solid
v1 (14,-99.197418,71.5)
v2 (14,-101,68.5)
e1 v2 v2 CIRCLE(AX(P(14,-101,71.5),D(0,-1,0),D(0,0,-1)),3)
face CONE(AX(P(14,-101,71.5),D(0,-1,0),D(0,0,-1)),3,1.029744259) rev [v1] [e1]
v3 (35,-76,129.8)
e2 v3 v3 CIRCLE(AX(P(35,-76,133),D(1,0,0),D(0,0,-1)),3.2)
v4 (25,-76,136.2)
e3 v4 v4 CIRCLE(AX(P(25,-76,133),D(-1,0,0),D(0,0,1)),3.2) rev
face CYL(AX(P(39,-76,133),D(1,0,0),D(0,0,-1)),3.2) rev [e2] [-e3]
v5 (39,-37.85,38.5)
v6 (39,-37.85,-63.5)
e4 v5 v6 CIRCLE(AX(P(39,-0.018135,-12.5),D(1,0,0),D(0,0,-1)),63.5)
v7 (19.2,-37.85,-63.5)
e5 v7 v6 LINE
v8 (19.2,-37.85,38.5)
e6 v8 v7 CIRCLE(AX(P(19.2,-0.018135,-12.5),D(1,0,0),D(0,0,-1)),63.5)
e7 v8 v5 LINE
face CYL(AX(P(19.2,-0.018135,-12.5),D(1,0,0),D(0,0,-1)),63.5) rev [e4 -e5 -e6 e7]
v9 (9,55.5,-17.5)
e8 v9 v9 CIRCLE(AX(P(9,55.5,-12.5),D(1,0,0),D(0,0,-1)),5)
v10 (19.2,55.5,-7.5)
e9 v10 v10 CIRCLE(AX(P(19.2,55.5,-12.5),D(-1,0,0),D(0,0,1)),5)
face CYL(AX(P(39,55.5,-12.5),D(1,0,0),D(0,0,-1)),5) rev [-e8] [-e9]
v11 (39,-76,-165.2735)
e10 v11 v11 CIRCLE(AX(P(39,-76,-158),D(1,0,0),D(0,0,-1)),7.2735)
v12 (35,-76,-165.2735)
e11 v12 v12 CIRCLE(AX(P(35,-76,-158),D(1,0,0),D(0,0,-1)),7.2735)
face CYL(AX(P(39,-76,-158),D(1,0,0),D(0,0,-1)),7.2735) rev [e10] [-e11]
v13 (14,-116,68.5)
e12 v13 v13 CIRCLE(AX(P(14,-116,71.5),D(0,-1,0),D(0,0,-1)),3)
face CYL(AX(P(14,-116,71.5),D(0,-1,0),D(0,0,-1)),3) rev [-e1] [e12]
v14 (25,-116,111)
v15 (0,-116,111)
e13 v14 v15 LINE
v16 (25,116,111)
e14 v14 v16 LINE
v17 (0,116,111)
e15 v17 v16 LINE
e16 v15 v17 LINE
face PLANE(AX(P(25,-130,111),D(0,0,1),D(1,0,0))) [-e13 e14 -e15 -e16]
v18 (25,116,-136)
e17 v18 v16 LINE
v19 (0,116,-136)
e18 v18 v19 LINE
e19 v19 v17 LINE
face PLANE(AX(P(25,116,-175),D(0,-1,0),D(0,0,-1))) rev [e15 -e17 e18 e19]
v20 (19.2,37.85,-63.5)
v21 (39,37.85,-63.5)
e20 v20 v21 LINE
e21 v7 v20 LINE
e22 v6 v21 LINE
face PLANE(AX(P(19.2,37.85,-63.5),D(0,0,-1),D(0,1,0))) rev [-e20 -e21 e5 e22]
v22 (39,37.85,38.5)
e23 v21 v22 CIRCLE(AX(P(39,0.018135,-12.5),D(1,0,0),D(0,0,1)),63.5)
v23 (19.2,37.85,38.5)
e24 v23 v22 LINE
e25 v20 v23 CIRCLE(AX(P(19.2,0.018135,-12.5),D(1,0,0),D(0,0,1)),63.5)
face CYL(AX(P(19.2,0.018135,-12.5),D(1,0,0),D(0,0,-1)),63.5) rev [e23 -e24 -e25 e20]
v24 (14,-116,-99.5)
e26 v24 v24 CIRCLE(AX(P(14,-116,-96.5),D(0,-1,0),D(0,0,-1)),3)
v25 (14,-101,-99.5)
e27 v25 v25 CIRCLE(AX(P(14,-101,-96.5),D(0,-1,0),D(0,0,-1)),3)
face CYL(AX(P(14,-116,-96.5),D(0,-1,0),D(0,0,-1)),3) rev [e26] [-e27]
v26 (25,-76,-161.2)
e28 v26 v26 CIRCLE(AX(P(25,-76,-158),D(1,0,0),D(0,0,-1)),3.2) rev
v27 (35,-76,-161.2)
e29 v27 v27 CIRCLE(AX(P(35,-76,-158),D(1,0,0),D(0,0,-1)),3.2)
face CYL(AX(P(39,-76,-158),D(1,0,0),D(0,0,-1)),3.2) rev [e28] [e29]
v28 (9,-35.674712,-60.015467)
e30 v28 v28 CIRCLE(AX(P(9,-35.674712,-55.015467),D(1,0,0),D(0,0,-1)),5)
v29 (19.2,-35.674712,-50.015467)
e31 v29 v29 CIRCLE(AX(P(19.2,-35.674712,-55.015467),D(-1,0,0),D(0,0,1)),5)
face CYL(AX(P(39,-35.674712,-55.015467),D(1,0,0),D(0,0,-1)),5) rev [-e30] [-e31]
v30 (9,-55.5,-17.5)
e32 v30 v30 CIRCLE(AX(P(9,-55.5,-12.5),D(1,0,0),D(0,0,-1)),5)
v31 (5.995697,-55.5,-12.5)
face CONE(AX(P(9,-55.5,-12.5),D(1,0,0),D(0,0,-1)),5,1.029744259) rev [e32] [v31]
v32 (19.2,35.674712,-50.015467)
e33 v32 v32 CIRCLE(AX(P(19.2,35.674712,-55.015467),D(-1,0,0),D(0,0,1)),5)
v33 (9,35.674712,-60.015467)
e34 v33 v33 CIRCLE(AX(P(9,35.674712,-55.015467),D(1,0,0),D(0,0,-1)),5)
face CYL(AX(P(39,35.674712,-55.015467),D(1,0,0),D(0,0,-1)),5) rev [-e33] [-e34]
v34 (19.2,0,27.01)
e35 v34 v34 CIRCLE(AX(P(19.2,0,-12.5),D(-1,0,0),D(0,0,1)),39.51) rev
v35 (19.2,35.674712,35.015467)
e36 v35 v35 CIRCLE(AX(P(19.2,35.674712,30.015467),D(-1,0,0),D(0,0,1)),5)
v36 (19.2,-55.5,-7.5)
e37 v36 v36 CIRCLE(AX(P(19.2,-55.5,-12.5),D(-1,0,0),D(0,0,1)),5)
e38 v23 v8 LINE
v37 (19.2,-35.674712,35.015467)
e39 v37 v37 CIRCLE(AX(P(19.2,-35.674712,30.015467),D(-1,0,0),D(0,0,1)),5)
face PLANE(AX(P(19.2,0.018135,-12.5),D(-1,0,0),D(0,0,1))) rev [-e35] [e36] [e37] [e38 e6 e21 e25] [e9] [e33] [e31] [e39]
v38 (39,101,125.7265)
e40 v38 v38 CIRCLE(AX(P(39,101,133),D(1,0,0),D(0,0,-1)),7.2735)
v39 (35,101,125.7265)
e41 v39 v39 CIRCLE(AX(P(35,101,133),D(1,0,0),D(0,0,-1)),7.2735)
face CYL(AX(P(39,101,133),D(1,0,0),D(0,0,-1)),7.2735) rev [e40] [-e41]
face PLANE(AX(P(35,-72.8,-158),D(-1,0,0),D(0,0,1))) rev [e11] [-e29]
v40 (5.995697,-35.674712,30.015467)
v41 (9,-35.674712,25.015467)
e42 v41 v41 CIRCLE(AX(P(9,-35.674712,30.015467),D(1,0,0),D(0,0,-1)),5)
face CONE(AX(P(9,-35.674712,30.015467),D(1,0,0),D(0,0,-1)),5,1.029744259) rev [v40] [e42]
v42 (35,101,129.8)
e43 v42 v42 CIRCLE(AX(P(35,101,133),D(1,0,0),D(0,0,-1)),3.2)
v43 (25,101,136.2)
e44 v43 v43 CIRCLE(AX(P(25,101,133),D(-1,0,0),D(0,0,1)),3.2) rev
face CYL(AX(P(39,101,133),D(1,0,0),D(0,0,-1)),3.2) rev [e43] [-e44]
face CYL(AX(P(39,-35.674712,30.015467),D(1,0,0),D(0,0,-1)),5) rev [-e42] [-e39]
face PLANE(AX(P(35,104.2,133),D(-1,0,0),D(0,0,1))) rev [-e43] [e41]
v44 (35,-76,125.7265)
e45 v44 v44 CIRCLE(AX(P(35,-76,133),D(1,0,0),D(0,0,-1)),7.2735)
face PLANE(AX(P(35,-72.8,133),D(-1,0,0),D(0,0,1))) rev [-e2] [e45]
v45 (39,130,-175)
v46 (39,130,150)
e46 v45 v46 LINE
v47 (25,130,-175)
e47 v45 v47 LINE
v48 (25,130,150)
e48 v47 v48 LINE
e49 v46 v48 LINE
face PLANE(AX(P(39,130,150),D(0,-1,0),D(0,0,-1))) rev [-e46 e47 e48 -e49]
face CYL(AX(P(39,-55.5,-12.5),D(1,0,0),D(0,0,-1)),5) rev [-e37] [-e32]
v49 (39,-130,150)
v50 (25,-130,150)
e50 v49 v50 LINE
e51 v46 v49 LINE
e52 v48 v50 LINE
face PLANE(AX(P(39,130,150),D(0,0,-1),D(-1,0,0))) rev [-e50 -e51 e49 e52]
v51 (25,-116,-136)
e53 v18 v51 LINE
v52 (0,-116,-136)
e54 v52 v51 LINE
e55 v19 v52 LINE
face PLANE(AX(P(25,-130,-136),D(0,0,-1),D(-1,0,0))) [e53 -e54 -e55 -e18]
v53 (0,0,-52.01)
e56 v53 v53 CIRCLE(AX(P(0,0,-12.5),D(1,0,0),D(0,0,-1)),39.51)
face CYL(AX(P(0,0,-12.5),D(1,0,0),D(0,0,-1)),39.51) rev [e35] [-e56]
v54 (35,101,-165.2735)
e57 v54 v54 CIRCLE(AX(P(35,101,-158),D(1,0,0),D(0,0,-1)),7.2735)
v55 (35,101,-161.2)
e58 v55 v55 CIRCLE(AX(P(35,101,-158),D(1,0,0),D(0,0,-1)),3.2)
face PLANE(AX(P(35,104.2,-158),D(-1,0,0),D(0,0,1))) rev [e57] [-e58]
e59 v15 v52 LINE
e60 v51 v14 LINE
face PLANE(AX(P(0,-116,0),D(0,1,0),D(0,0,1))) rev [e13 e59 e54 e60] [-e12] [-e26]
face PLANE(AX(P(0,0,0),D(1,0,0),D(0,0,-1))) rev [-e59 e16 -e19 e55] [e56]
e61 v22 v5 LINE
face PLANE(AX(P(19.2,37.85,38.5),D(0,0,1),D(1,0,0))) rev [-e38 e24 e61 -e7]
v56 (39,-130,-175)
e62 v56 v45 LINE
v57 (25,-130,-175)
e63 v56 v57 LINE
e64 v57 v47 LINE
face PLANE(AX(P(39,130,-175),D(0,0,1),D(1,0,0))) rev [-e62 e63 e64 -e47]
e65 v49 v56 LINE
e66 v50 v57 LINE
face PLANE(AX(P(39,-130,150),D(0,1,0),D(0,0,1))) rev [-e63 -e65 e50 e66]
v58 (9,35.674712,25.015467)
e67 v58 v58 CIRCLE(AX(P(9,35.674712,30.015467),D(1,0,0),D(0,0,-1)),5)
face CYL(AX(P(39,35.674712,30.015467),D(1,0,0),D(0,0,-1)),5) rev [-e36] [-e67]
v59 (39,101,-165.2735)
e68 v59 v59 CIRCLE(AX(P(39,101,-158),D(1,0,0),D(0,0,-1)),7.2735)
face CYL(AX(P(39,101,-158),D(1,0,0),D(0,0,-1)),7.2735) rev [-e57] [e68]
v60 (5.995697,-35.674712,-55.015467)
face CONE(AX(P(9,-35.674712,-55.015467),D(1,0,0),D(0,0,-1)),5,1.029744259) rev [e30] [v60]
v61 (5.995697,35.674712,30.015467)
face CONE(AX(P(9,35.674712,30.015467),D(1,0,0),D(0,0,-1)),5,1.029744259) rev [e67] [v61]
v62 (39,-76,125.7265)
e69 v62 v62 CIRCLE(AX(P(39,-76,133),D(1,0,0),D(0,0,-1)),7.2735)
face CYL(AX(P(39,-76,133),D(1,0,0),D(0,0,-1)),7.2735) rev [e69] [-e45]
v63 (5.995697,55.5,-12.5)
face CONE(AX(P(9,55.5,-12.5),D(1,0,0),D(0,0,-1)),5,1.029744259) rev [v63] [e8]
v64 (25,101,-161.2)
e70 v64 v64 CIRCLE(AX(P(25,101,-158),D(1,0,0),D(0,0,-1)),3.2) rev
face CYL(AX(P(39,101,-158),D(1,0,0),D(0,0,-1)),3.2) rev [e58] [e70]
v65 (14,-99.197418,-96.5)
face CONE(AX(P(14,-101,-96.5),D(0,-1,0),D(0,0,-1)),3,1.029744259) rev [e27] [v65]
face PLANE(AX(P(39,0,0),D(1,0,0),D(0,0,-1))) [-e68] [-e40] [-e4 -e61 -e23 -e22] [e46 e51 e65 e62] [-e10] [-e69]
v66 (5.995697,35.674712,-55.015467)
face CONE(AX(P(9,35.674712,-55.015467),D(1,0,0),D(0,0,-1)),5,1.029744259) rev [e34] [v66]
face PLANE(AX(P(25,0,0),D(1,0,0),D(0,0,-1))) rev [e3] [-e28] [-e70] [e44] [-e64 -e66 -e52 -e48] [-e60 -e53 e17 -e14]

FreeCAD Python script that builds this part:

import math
import FreeCAD as App
import Part
import Sketcher

V = App.Vector


def add_polygon(sketch, points):
    """Adds a closed chain of lines whose ends are joined by coincident constraints."""
    first, n = sketch.GeometryCount, len(points)
    for a, b in zip(points, points[1:] + points[:1]):
        sketch.addGeometry(Part.LineSegment(App.Vector(*a, 0), App.Vector(*b, 0)), False)
    for i in range(n):
        sketch.addConstraint(Sketcher.Constraint("Coincident", first + i, 2, first + (i + 1) % n, 1))

doc = App.newDocument("Part")
body = doc.addObject("PartDesign::Body", "Body")

sketch1 = body.newObject("Sketcher::SketchObject", "Sketch")
sketch1.AttachmentSupport = (doc.getObject("YZ_Plane"), [""])
sketch1.MapMode = "FlatFace"
add_polygon(sketch1, [(130, 150), (-130, 150), (-130, -175), (130, -175)])
sketch1.addConstraint([
    Sketcher.Constraint("Horizontal", 0),
    Sketcher.Constraint("Vertical", 1),
    Sketcher.Constraint("Horizontal", 2),
    Sketcher.Constraint("Vertical", 3),
    Sketcher.Constraint("DistanceX", 0, 2, 0, 1, 260.0),
    Sketcher.Constraint("DistanceY", 1, 2, 1, 1, 325.0),
    Sketcher.Constraint("DistanceX", 0, 2, -1, 1, 130.0),
    Sketcher.Constraint("DistanceY", -1, 1, 0, 2, 150.0),
])
pad1 = body.newObject("PartDesign::Pad", "Pad")
pad1.Profile = sketch1
pad1.Length = 39

sketch2 = body.newObject("Sketcher::SketchObject", "Sketch001")
sketch2.AttachmentSupport = (doc.getObject("YZ_Plane"), [""])
sketch2.MapMode = "FlatFace"
sketch2.AttachmentOffset = App.Placement(V(0, 0, 39), App.Rotation())
sketch2.addGeometry([
    Part.Circle(V(101, -158, 0), V(0, 0, 1), 3.2),
    Part.Circle(V(-76, -158, 0), V(0, 0, 1), 3.2),
    Part.Circle(V(101, 133, 0), V(0, 0, 1), 3.2),
    Part.Circle(V(-76, 133, 0), V(0, 0, 1), 3.2),
], False)
sketch2.addConstraint([
    Sketcher.Constraint("Equal", 0, 1),
    Sketcher.Constraint("Equal", 1, 2),
    Sketcher.Constraint("Equal", 2, 3),
    Sketcher.Constraint("Horizontal", 0, 3, 1, 3),
    Sketcher.Constraint("Horizontal", 2, 3, 3, 3),
    Sketcher.Constraint("Vertical", 0, 3, 2, 3),
    Sketcher.Constraint("Vertical", 1, 3, 3, 3),
    Sketcher.Constraint("Diameter", 0, 6.4),
    Sketcher.Constraint("DistanceX", -1, 1, 0, 3, 101.0),
    Sketcher.Constraint("DistanceY", 0, 3, -1, 1, 158.0),
    Sketcher.Constraint("DistanceX", 1, 3, -1, 1, 76.0),
    Sketcher.Constraint("DistanceY", -1, 1, 2, 3, 133.0),
])
doc.recompute()
hole = body.newObject("PartDesign::Hole", "Hole")
hole.Profile = sketch2
hole.ThreadType = "None"
hole.Diameter = 6.4
hole.DepthType = "Dimension"
hole.Depth = 30
hole.DrillPoint = "Angled"
hole.DrillPointAngle = 118
hole.HoleCutType = "Counterbore"
hole.HoleCutDiameter = 14.547
hole.HoleCutDepth = 4

sketch3 = body.newObject("Sketcher::SketchObject", "Sketch002")
sketch3.AttachmentSupport = (doc.getObject("YZ_Plane"), [""])
sketch3.MapMode = "FlatFace"
sketch3.AttachmentOffset = App.Placement(V(0, 0, 39), App.Rotation())
sketch3.addGeometry(Part.Circle(V(0, -12, 0), V(0, 0, 1), 40), False)
sketch3.addConstraint([
    Sketcher.Constraint("PointOnObject", 0, 3, -2),
    Sketcher.Constraint("Diameter", 0, 79.02),
    Sketcher.Constraint("DistanceY", 0, 3, -1, 1, 12.5),
])
pocket1 = body.newObject("PartDesign::Pocket", "Pocket")
pocket1.Profile = sketch3
pocket1.Length = 39

sketch4 = body.newObject("Sketcher::SketchObject", "Sketch003")
sketch4.AttachmentSupport = (doc.getObject("YZ_Plane"), [""])
sketch4.MapMode = "FlatFace"
sketch4.AttachmentOffset = App.Placement(V(0, 0, 39), App.Rotation())
sketch4.addGeometry([
    Part.LineSegment(V(37.85, 38.5, 0), V(-37.85, 38.5, 0)),
    Part.ArcOfCircle(Part.Circle(V(-0.018135, -12.5, 0), V(0, 0, 1), 63.5), math.radians(126.568071), math.radians(233.431929)),
    Part.LineSegment(V(-37.85, -63.5, 0), V(37.85, -63.5, 0)),
    Part.ArcOfCircle(Part.Circle(V(0.018135, -12.5, 0), V(0, 0, 1), 63.5), math.radians(-53.431929), math.radians(53.431929)),
], False)
sketch4.addConstraint([
    Sketcher.Constraint("Coincident", 0, 2, 1, 1),
    Sketcher.Constraint("Coincident", 1, 2, 2, 1),
    Sketcher.Constraint("Coincident", 2, 2, 3, 1),
    Sketcher.Constraint("Coincident", 3, 2, 0, 1),
    Sketcher.Constraint("Horizontal", 0),
    Sketcher.Constraint("Horizontal", 2),
    Sketcher.Constraint("Equal", 1, 3),
    Sketcher.Constraint("Symmetric", 1, 3, 3, 3, -2),
    Sketcher.Constraint("Vertical", 0, 2, 1, 2),
    Sketcher.Constraint("Radius", 1, 63.5),
    Sketcher.Constraint("DistanceX", 0, 2, 0, 1, 75.7),
    Sketcher.Constraint("DistanceY", 1, 3, 0, 2, 51.0),
    Sketcher.Constraint("DistanceY", 1, 3, -1, 1, 12.5),
])
pocket2 = body.newObject("PartDesign::Pocket", "Pocket001")
pocket2.Profile = sketch4
pocket2.Length = 19.8

sketch5 = body.newObject("Sketcher::SketchObject", "Sketch004")
sketch5.AttachmentSupport = (doc.getObject("YZ_Plane"), [""])
sketch5.MapMode = "FlatFace"
sketch5.AttachmentOffset = App.Placement(V(0, 0, 39), App.Rotation())
sketch5.addGeometry([
    Part.Circle(V(56, -12, 0), V(0, 0, 1), 5),
    Part.Circle(V(36, -55, 0), V(0, 0, 1), 5),
    Part.Circle(V(36, 30, 0), V(0, 0, 1), 5),
    Part.Circle(V(-36, 30, 0), V(0, 0, 1), 5),
    Part.Circle(V(-56, -12, 0), V(0, 0, 1), 5),
    Part.Circle(V(-36, -55, 0), V(0, 0, 1), 5),
], False)
sketch5.addConstraint([
    Sketcher.Constraint("Equal", 0, 1),
    Sketcher.Constraint("Equal", 1, 2),
    Sketcher.Constraint("Equal", 2, 3),
    Sketcher.Constraint("Equal", 3, 4),
    Sketcher.Constraint("Equal", 4, 5),
    Sketcher.Constraint("Symmetric", 2, 3, 3, 3, -2),
    Sketcher.Constraint("Symmetric", 0, 3, 4, 3, -2),
    Sketcher.Constraint("Symmetric", 1, 3, 5, 3, -2),
    Sketcher.Constraint("Vertical", 1, 3, 2, 3),
    Sketcher.Constraint("Diameter", 0, 10.0),
    Sketcher.Constraint("DistanceX", 4, 3, 0, 3, 111.0),
    Sketcher.Constraint("DistanceY", 0, 3, -1, 1, 12.5),
    Sketcher.Constraint("DistanceX", -1, 1, 1, 3, 35.674712),
    Sketcher.Constraint("DistanceY", 1, 3, -1, 1, 55.015467),
    Sketcher.Constraint("DistanceY", -1, 1, 2, 3, 30.015467),
])
doc.recompute()
hole2 = body.newObject("PartDesign::Hole", "Hole001")
hole2.Profile = sketch5
hole2.ThreadType = "None"
hole2.Diameter = 10
hole2.DepthType = "Dimension"
hole2.Depth = 30
hole2.DrillPoint = "Angled"
hole2.DrillPointAngle = 118

sketch6 = body.newObject("Sketcher::SketchObject", "Sketch005")
sketch6.AttachmentSupport = (doc.getObject("YZ_Plane"), [""])
sketch6.MapMode = "FlatFace"
add_polygon(sketch6, [(130, -136), (-130, -136), (-130, -175), (130, -175)])
add_polygon(sketch6, [(130, 150), (-130, 150), (-130, 111), (130, 111)])
sketch6.addConstraint([
    Sketcher.Constraint("Horizontal", 0),
    Sketcher.Constraint("Vertical", 1),
    Sketcher.Constraint("Horizontal", 2),
    Sketcher.Constraint("Vertical", 3),
    Sketcher.Constraint("Horizontal", 4),
    Sketcher.Constraint("Vertical", 5),
    Sketcher.Constraint("Horizontal", 6),
    Sketcher.Constraint("Vertical", 7),
    Sketcher.Constraint("Vertical", 1, 2, 4, 2),
    Sketcher.Constraint("Vertical", 3, 2, 6, 2),
    Sketcher.Constraint("Equal", 3, 5),
    Sketcher.Constraint("DistanceX", 0, 2, 0, 1, 260.0),
    Sketcher.Constraint("DistanceY", 1, 2, 1, 1, 39.0),
    Sketcher.Constraint("DistanceX", 0, 2, -1, 1, 130.0),
    Sketcher.Constraint("DistanceY", 0, 2, -1, 1, 136.0),
    Sketcher.Constraint("DistanceY", -1, 1, 4, 2, 150.0),
])
pocket3 = body.newObject("PartDesign::Pocket", "Pocket002")
pocket3.Profile = sketch6
pocket3.Length = 25
pocket3.Reversed = True

sketch7 = body.newObject("Sketcher::SketchObject", "Sketch006")
sketch7.AttachmentSupport = (doc.getObject("XZ_Plane"), [""])
sketch7.MapMode = "FlatFace"
sketch7.AttachmentOffset = App.Placement(V(0, 0, 130), App.Rotation())
add_polygon(sketch7, [(25, -136), (25, 111), (0, 111), (0, -136)])
sketch7.addConstraint([
    Sketcher.Constraint("Vertical", 0),
    Sketcher.Constraint("Horizontal", 1),
    Sketcher.Constraint("Vertical", 2),
    Sketcher.Constraint("Horizontal", 3),
    Sketcher.Constraint("PointOnObject", 1, 2, -2),
    Sketcher.Constraint("DistanceX", 1, 2, 1, 1, 25.0),
    Sketcher.Constraint("DistanceY", 0, 1, 0, 2, 247.0),
    Sketcher.Constraint("DistanceY", -1, 1, 0, 2, 111.0),
])
pocket4 = body.newObject("PartDesign::Pocket", "Pocket003")
pocket4.Profile = sketch7
pocket4.Length = 14

sketch8 = body.newObject("Sketcher::SketchObject", "Sketch007")
sketch8.AttachmentSupport = (doc.getObject("XZ_Plane"), [""])
sketch8.MapMode = "FlatFace"
sketch8.AttachmentOffset = App.Placement(V(0, 0, 116), App.Rotation())
sketch8.addGeometry([
    Part.Circle(V(14, -96.5, 0), V(0, 0, 1), 3),
    Part.Circle(V(14, 71.5, 0), V(0, 0, 1), 3),
], False)
sketch8.addConstraint([
    Sketcher.Constraint("Equal", 0, 1),
    Sketcher.Constraint("Vertical", 0, 3, 1, 3),
    Sketcher.Constraint("Diameter", 0, 6.0),
    Sketcher.Constraint("DistanceX", -1, 1, 0, 3, 14.0),
    Sketcher.Constraint("DistanceY", 0, 3, 1, 3, 168.0),
    Sketcher.Constraint("DistanceY", 0, 3, -1, 1, 96.5),
])
doc.recompute()
hole3 = body.newObject("PartDesign::Hole", "Hole002")
hole3.Profile = sketch8
hole3.ThreadType = "None"
hole3.Diameter = 6
hole3.DepthType = "Dimension"
hole3.Depth = 15
hole3.DrillPoint = "Angled"
hole3.DrillPointAngle = 118

sketch9 = body.newObject("Sketcher::SketchObject", "Sketch008")
sketch9.AttachmentSupport = (doc.getObject("XY_Plane"), [""])
sketch9.MapMode = "FlatFace"
add_polygon(sketch9, [(0, 130), (0, 116), (25, 116), (25, 130)])
sketch9.addConstraint([
    Sketcher.Constraint("Vertical", 0),
    Sketcher.Constraint("Horizontal", 1),
    Sketcher.Constraint("Vertical", 2),
    Sketcher.Constraint("Horizontal", 3),
    Sketcher.Constraint("PointOnObject", 0, 2, -2),
    Sketcher.Constraint("DistanceX", 1, 1, 1, 2, 25.0),
    Sketcher.Constraint("DistanceY", 0, 2, 0, 1, 14.0),
    Sketcher.Constraint("DistanceY", -1, 1, 0, 2, 116.0),
])
pocket5 = body.newObject("PartDesign::Pocket", "Pocket004")
pocket5.Profile = sketch9
pocket5.Type = "ThroughAll"
pocket5.Midplane = True

doc.recompute()
